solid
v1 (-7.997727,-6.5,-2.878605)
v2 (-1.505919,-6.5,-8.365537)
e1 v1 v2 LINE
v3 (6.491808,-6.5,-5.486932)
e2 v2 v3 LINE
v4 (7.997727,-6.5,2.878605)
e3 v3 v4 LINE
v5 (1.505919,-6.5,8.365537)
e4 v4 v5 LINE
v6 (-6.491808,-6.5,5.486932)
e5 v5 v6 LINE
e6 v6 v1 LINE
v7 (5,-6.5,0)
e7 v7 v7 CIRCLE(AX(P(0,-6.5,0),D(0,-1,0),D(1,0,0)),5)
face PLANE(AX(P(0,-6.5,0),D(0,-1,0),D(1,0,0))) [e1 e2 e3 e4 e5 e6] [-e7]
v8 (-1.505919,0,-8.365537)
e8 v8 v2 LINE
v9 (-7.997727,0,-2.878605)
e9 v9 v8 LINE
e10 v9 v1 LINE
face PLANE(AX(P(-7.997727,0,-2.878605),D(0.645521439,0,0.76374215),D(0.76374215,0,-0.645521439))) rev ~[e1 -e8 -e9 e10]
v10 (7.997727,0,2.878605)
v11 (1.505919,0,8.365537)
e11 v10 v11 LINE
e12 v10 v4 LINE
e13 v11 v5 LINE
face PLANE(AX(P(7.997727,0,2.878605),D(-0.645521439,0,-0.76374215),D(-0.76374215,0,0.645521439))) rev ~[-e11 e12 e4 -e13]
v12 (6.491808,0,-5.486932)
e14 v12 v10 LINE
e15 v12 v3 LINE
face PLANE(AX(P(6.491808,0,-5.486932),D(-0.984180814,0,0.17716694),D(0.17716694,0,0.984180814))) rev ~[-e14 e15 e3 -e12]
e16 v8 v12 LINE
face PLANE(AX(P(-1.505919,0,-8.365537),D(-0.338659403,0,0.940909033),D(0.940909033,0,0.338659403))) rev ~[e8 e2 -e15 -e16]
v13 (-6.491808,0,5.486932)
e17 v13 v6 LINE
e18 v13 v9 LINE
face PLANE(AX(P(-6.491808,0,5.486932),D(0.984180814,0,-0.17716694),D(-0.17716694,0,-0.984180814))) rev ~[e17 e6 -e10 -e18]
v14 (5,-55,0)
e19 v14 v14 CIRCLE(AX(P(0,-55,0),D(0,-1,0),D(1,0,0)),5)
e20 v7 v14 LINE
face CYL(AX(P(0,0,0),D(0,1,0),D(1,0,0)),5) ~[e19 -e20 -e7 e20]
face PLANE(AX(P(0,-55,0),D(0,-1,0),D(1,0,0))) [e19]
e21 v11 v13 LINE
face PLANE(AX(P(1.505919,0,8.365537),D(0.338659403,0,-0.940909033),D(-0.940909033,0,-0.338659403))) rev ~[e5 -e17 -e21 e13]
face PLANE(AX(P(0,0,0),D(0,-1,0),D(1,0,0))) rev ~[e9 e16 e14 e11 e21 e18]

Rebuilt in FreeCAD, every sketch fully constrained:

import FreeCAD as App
import Part
import Sketcher

V = App.Vector


def add_polygon(sketch, points):
    """Adds a closed chain of lines whose ends are joined by coincident constraints."""
    first, n = sketch.GeometryCount, len(points)
    for a, b in zip(points, points[1:] + points[:1]):
        sketch.addGeometry(Part.LineSegment(App.Vector(*a, 0), App.Vector(*b, 0)), False)
    for i in range(n):
        sketch.addConstraint(Sketcher.Constraint("Coincident", first + i, 2, first + (i + 1) % n, 1))

doc = App.newDocument("Part")
body = doc.addObject("PartDesign::Body", "Body")

# Sketch on XZ plane
sketch1 = doc.addObject("Sketcher::SketchObject", "Sketch")
body.addObject(sketch1)
sketch1.AttachmentSupport = (doc.XZ_Plane, [""])
sketch1.MapMode = "FlatFace"
add_polygon(sketch1, [(6.491808, -5.486932), (7.997727, 2.878605), (1.505919, 8.365537), (-6.491808, 5.486932), (-7.997727, -2.878605), (-1.505919, -8.365537)])  # lines 0-5
sketch1.addGeometry(Part.Circle(V(0, 0, 0), V(0, 0, 1), 5), False)  # 6
sketch1.addConstraint([
    Sketcher.Constraint("Coincident", 6, 3, -1, 1),
    Sketcher.Constraint("Symmetric", 0, 2, 3, 2, -1, 1),
    Sketcher.Constraint("Symmetric", 1, 2, 4, 2, -1, 1),
    Sketcher.Constraint("Symmetric", 2, 2, 5, 2, -1, 1),
    Sketcher.Constraint("Equal", 0, 1),
    Sketcher.Constraint("Equal", 1, 2),
    Sketcher.Constraint("Diameter", 6, 10.0),
    Sketcher.Constraint("Distance", 0, 8.5),
    Sketcher.Constraint("DistanceX", -1, 1, 1, 2, 1.505919),
    Sketcher.Constraint("DistanceX", 1, 2, 0, 2, 6.491808),
    Sketcher.Constraint("DistanceX", 3, 2, 2, 2, 1.505919),
])
pad1 = doc.addObject("PartDesign::Pad", "Pad")
body.addObject(pad1)
pad1.Profile = sketch1
pad1.Length = 6.5

# Sketch on XZ plane
sketch2 = doc.addObject("Sketcher::SketchObject", "Sketch001")
body.addObject(sketch2)
sketch2.AttachmentSupport = (doc.XZ_Plane, [""])
sketch2.MapMode = "FlatFace"
sketch2.addGeometry(Part.Circle(V(0, 0, 0), V(0, 0, 1), 5), False)
sketch2.addConstraint([
    Sketcher.Constraint("Coincident", 0, 3, -1, 1),
    Sketcher.Constraint("Diameter", 0, 10.0),
])
pad2 = doc.addObject("PartDesign::Pad", "Pad001")
body.addObject(pad2)
pad2.Profile = sketch2
pad2.Length = 55

doc.recompute()
